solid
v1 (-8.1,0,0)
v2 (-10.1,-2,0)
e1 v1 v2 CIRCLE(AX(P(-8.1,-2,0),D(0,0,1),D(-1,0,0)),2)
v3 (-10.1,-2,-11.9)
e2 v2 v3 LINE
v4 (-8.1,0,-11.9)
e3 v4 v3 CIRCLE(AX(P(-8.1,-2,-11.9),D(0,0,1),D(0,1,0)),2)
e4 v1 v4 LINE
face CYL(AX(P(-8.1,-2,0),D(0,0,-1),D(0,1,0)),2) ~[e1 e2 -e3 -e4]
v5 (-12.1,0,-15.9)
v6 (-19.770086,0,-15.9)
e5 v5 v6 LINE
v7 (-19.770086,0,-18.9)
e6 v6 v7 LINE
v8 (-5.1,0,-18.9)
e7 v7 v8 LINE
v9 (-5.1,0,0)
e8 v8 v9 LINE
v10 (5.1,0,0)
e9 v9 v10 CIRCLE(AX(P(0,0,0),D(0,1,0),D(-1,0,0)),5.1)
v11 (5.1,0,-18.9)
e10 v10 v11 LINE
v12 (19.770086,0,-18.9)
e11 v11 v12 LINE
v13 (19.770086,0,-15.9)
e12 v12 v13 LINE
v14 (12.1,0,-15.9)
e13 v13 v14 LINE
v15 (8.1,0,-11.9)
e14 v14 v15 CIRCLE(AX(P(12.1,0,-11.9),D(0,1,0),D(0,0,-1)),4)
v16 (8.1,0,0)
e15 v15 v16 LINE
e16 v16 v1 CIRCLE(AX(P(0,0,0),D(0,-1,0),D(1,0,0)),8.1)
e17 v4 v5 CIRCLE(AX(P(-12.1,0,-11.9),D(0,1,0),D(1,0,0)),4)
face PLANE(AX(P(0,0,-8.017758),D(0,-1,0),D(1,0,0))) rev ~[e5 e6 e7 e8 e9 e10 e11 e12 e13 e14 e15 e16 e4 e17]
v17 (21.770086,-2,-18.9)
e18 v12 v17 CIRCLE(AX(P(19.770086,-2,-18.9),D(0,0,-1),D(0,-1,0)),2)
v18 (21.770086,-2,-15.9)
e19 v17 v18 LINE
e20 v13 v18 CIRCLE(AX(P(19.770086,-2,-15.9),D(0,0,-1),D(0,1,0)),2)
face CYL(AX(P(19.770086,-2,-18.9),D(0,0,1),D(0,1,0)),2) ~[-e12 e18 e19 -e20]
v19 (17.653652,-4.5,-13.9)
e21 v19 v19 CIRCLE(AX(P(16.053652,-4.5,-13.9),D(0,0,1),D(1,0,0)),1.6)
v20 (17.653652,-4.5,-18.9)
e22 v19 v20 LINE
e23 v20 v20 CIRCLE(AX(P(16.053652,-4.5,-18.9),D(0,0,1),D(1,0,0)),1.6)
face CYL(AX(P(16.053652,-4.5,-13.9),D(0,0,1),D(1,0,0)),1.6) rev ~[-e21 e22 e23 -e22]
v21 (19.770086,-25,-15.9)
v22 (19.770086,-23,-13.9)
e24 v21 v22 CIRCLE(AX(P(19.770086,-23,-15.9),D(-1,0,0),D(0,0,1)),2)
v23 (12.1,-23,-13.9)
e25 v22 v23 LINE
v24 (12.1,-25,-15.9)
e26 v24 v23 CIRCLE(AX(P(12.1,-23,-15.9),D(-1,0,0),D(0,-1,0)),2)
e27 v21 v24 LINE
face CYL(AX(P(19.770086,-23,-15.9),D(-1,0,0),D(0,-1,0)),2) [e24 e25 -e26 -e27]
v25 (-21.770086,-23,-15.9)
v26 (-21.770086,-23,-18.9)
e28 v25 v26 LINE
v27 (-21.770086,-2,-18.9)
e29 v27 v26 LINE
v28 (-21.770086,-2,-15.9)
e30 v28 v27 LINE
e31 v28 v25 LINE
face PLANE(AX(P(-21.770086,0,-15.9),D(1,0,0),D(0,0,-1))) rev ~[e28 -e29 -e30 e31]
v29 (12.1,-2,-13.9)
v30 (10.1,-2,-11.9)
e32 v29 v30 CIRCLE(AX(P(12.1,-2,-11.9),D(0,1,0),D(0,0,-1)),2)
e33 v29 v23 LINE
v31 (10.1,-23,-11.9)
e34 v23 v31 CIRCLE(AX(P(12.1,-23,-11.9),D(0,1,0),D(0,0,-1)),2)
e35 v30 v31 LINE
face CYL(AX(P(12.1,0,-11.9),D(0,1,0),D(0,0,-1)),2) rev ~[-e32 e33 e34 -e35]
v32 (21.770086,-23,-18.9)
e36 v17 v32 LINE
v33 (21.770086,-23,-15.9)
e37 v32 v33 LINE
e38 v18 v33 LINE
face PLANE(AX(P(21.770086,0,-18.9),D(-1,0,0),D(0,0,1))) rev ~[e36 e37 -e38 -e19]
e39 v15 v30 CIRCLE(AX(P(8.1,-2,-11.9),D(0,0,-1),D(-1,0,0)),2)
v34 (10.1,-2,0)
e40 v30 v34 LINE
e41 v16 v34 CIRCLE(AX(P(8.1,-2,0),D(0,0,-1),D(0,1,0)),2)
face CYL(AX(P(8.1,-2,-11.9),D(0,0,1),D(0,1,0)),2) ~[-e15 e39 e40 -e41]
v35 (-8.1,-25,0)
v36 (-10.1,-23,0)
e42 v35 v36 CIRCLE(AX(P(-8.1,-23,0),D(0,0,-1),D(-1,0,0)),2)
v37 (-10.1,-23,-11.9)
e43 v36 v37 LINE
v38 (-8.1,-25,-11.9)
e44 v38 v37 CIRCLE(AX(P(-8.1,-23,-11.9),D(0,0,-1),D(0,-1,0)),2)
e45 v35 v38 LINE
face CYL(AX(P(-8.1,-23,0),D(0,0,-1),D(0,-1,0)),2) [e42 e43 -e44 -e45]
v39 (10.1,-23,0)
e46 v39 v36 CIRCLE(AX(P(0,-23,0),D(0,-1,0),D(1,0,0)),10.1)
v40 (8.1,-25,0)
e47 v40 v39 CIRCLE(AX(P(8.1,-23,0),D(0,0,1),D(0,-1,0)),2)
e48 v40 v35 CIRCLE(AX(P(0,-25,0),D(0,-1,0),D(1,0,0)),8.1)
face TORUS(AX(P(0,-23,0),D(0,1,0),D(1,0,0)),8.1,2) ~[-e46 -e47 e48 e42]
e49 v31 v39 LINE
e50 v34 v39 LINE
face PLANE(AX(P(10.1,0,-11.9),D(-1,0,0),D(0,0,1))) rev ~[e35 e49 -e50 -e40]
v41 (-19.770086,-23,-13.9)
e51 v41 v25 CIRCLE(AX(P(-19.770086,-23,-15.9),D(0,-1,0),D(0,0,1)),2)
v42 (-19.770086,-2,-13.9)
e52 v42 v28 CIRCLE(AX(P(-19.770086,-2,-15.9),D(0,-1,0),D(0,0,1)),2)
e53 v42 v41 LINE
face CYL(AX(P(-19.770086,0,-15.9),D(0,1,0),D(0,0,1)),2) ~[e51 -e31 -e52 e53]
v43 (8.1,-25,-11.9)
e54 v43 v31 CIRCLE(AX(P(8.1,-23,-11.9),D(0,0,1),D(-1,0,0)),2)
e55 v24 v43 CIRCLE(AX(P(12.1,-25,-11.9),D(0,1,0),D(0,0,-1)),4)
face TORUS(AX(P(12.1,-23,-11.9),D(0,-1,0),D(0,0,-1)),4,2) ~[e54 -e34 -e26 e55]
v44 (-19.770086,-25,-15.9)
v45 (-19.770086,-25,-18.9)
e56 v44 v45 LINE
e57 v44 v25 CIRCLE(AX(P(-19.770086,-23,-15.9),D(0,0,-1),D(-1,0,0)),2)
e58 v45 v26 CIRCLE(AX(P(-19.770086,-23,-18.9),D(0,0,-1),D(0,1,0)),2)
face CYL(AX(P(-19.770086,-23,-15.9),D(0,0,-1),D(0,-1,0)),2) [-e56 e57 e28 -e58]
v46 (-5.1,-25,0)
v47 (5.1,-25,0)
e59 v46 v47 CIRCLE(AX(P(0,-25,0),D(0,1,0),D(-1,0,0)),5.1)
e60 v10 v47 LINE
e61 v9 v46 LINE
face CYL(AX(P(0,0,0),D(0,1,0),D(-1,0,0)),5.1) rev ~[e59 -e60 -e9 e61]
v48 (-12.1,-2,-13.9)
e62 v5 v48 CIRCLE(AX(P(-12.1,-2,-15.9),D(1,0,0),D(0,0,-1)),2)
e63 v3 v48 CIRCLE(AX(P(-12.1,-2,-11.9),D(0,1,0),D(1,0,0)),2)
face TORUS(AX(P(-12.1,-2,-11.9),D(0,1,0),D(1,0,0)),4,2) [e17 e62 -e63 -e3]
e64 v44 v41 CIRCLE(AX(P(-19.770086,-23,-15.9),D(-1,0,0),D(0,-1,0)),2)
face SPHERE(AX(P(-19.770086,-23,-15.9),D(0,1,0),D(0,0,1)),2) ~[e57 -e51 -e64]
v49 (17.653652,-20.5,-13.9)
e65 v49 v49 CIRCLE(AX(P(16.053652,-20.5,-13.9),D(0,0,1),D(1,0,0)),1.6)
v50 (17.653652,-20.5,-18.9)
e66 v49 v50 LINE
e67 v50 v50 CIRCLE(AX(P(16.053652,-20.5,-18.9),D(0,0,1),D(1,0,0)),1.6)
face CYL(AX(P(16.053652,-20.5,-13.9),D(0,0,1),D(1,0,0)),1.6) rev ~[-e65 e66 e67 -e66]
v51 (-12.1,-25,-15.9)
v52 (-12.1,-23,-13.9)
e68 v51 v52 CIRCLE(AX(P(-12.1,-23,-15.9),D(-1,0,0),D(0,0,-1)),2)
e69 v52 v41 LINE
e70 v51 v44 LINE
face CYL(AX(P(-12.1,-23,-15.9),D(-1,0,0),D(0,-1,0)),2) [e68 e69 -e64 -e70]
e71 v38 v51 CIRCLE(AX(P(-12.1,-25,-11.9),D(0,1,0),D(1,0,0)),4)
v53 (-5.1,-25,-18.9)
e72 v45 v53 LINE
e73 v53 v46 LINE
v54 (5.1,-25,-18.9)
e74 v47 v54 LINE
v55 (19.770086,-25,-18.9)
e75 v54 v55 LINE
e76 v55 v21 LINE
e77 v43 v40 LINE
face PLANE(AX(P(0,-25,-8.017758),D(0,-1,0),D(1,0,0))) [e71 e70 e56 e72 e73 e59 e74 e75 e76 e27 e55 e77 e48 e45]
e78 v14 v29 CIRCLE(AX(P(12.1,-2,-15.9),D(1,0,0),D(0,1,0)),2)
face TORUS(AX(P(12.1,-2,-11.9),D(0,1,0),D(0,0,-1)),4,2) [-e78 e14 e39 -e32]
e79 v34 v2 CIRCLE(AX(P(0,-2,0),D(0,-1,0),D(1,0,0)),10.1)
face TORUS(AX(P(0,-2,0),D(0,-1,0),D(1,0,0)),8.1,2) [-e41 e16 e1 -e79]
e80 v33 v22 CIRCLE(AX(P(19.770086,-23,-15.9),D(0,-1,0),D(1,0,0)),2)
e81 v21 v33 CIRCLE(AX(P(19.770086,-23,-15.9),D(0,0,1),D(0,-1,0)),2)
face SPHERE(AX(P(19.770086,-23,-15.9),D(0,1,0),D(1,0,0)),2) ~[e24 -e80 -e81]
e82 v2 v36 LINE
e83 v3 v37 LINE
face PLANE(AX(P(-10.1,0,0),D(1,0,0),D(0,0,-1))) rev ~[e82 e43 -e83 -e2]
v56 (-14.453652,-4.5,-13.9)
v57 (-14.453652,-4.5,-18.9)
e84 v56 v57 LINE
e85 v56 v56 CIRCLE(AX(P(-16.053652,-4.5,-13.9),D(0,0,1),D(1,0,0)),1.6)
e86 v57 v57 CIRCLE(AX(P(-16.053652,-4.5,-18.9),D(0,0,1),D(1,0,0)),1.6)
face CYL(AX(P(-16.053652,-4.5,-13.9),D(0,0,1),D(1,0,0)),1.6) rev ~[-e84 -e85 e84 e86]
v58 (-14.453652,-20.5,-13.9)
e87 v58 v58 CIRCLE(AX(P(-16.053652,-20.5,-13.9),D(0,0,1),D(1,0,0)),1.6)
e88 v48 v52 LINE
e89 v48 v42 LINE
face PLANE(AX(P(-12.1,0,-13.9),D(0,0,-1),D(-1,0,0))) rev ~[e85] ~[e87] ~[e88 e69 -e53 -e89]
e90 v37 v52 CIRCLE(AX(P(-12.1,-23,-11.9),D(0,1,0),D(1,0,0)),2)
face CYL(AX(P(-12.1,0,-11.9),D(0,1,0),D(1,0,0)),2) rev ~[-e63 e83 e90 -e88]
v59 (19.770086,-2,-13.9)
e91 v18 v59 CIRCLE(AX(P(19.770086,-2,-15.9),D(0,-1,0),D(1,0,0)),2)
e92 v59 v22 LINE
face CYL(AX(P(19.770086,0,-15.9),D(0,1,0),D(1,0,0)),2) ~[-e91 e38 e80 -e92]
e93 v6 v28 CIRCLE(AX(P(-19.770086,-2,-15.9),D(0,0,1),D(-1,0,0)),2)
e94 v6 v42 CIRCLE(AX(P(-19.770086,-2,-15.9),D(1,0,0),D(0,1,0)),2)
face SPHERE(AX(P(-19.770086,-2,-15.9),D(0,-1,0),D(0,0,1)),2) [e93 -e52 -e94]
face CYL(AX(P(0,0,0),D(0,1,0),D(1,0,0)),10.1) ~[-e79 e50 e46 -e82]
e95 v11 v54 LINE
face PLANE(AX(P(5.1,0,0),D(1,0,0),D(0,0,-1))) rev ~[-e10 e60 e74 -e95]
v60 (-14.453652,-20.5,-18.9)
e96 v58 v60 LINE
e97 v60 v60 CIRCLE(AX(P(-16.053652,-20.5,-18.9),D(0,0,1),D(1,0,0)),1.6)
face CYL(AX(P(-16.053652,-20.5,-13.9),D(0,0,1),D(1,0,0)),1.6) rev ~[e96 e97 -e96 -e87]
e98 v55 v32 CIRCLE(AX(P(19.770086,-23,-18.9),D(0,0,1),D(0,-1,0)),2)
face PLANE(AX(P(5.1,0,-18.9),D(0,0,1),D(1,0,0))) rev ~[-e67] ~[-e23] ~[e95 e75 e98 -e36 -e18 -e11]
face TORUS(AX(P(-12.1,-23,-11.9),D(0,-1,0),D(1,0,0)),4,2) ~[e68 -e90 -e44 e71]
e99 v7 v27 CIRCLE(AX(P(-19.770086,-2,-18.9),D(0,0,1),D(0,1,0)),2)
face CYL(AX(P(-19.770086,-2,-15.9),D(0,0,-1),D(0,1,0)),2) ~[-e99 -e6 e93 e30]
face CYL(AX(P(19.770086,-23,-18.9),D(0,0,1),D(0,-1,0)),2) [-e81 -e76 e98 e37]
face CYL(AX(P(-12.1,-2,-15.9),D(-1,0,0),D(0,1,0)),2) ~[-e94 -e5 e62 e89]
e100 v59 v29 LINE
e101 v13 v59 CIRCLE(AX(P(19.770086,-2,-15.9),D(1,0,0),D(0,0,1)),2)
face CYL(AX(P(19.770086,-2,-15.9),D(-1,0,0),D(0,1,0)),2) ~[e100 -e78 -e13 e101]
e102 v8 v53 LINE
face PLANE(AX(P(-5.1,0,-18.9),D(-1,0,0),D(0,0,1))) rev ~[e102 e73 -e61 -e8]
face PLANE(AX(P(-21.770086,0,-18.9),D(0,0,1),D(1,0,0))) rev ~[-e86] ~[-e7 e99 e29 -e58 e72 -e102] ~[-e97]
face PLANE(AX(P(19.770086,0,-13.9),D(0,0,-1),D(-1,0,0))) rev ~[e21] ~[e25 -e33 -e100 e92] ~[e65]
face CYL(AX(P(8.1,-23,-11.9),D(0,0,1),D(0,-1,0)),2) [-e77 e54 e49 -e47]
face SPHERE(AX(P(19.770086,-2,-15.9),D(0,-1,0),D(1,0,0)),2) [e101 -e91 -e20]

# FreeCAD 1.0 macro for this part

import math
import FreeCAD as App
import Part
import Sketcher


def edges_at(feature, points):
    """Names of the edges that pass closest to the given points."""
    edges = feature.Shape.Edges
    near = lambda p: min(range(len(edges)), key=lambda i: edges[i].distToShape(Part.Vertex(*p))[0])
    return sorted({f"Edge{near(p) + 1}" for p in points})

doc = App.newDocument("Part")
body = doc.addObject("PartDesign::Body", "Body")

# Sketch on XZ plane
sketch1 = body.newObject("Sketcher::SketchObject", "Sketch")
sketch1.AttachmentSupport = (doc.getObject("XZ_Plane"), [""])
sketch1.MapMode = "FlatFace"
sketch1.addGeometry([
    Part.ArcOfCircle(Part.Circle(App.Vector(0, 0, 0), App.Vector(0, 0, 1), 5.1), math.radians(0), math.radians(180)),  # 0
    Part.LineSegment(App.Vector(5.1, 0, 0), App.Vector(5.1, -18.9, 0)),  # 1
    Part.LineSegment(App.Vector(5.1, -18.9, 0), App.Vector(21.8, -18.9, 0)),  # 2
    Part.LineSegment(App.Vector(21.8, -18.9, 0), App.Vector(21.8, -15.9, 0)),  # 3
    Part.ArcOfCircle(Part.Circle(App.Vector(19.8, -15.9, 0), App.Vector(0, 0, 1), 2), math.radians(0), math.radians(90)),  # 4
    Part.LineSegment(App.Vector(19.8, -13.9, 0), App.Vector(12.1, -13.9, 0)),  # 5
    Part.ArcOfCircle(Part.Circle(App.Vector(12.1, -11.9, 0), App.Vector(0, 0, 1), 2), math.radians(180), math.radians(270)),  # 6
    Part.LineSegment(App.Vector(10.1, -11.9, 0), App.Vector(10.1, 0, 0)),  # 7
    Part.ArcOfCircle(Part.Circle(App.Vector(0, 0, 0), App.Vector(0, 0, 1), 10.1), math.radians(0), math.radians(180)),  # 8
    Part.LineSegment(App.Vector(-10.1, 0, 0), App.Vector(-10.1, -11.9, 0)),  # 9
    Part.ArcOfCircle(Part.Circle(App.Vector(-12.1, -11.9, 0), App.Vector(0, 0, 1), 2), math.radians(-90), math.radians(0)),  # 10
    Part.LineSegment(App.Vector(-12.1, -13.9, 0), App.Vector(-19.8, -13.9, 0)),  # 11
    Part.ArcOfCircle(Part.Circle(App.Vector(-19.8, -15.9, 0), App.Vector(0, 0, 1), 2), math.radians(90), math.radians(180)),  # 12
    Part.LineSegment(App.Vector(-21.8, -15.9, 0), App.Vector(-21.8, -18.9, 0)),  # 13
    Part.LineSegment(App.Vector(-21.8, -18.9, 0), App.Vector(-5.1, -18.9, 0)),  # 14
    Part.LineSegment(App.Vector(-5.1, -18.9, 0), App.Vector(-5.1, 0, 0)),  # 15
], False)
sketch1.addConstraint([
    Sketcher.Constraint("Tangent", 0, 1, 1, 1),
    Sketcher.Constraint("Coincident", 1, 2, 2, 1),
    Sketcher.Constraint("Coincident", 2, 2, 3, 1),
    Sketcher.Constraint("Tangent", 3, 2, 4, 1),
    Sketcher.Constraint("Tangent", 4, 2, 5, 1),
    Sketcher.Constraint("Tangent", 5, 2, 6, 2),
    Sketcher.Constraint("Tangent", 6, 1, 7, 1),
    Sketcher.Constraint("Tangent", 7, 2, 8, 1),
    Sketcher.Constraint("Tangent", 8, 2, 9, 1),
    Sketcher.Constraint("Tangent", 9, 2, 10, 2),
    Sketcher.Constraint("Tangent", 10, 1, 11, 1),
    Sketcher.Constraint("Tangent", 11, 2, 12, 1),
    Sketcher.Constraint("Tangent", 12, 2, 13, 1),
    Sketcher.Constraint("Coincident", 13, 2, 14, 1),
    Sketcher.Constraint("Coincident", 14, 2, 15, 1),
    Sketcher.Constraint("Tangent", 15, 2, 0, 2),
    Sketcher.Constraint("Vertical", 1),
    Sketcher.Constraint("Horizontal", 2),
    Sketcher.Constraint("Vertical", 3),
    Sketcher.Constraint("Horizontal", 5),
    Sketcher.Constraint("Vertical", 7),
    Sketcher.Constraint("Vertical", 9),
    Sketcher.Constraint("Horizontal", 11),
    Sketcher.Constraint("Vertical", 13),
    Sketcher.Constraint("Horizontal", 14),
    Sketcher.Constraint("Vertical", 15),
    Sketcher.Constraint("Coincident", 0, 3, -1, 1),
    Sketcher.Constraint("Coincident", 8, 3, -1, 1),
    Sketcher.Constraint("Equal", 4, 6),
    Sketcher.Constraint("Equal", 6, 10),
    Sketcher.Constraint("Equal", 10, 12),
    Sketcher.Constraint("Symmetric", 4, 3, 12, 3, -2),
    Sketcher.Constraint("Horizontal", 2, 2, 13, 2),
    Sketcher.Constraint("Radius", 4, 2.0),
    Sketcher.Constraint("Radius", 0, 5.1),
    Sketcher.Constraint("Radius", 8, 10.1),
    Sketcher.Constraint("DistanceY", 3, 1, 3, 2, 3.0),
    Sketcher.Constraint("DistanceY", 1, 2, 1, 1, 18.9),
    Sketcher.Constraint("DistanceX", 2, 1, 2, 2, 16.670086),
])
pad1 = body.newObject("PartDesign::Pad", "Pad")
pad1.Profile = sketch1
pad1.Length = 25

# Sketch on XY plane
sketch2 = body.newObject("Sketcher::SketchObject", "Sketch001")
sketch2.AttachmentSupport = (doc.getObject("XY_Plane"), [""])
sketch2.MapMode = "FlatFace"
sketch2.AttachmentOffset = App.Placement(App.Vector(0, 0, -13.9), App.Rotation())
sketch2.addGeometry([
    Part.Circle(App.Vector(16.1, -20.5, 0), App.Vector(0, 0, 1), 1.6),
    Part.Circle(App.Vector(16.1, -4.5, 0), App.Vector(0, 0, 1), 1.6),
    Part.Circle(App.Vector(-16.1, -4.5, 0), App.Vector(0, 0, 1), 1.6),
    Part.Circle(App.Vector(-16.1, -20.5, 0), App.Vector(0, 0, 1), 1.6),
], False)
sketch2.addConstraint([
    Sketcher.Constraint("Equal", 0, 1),
    Sketcher.Constraint("Equal", 1, 2),
    Sketcher.Constraint("Equal", 2, 3),
    Sketcher.Constraint("Symmetric", 1, 3, 2, 3, -2),
    Sketcher.Constraint("Symmetric", 0, 3, 3, 3, -2),
    Sketcher.Constraint("Vertical", 0, 3, 1, 3),
    Sketcher.Constraint("Diameter", 0, 3.2),
    Sketcher.Constraint("DistanceY", 0, 3, 1, 3, 16.0),
    Sketcher.Constraint("DistanceY", 0, 3, -1, 1, 20.5),
    Sketcher.Constraint("DistanceX", -1, 1, 0, 3, 16.053652),
])
pocket1 = body.newObject("PartDesign::Pocket", "Pocket")
pocket1.Profile = sketch2
pocket1.Length = 25
doc.recompute()

fillet = body.newObject("PartDesign::Fillet", "Fillet")
fillet.Base = (pocket1, edges_at(pocket1, [(-10.1, -25, -5.95), (-10.1, 0, -5.95)]))
fillet.Radius = 2

doc.recompute()
